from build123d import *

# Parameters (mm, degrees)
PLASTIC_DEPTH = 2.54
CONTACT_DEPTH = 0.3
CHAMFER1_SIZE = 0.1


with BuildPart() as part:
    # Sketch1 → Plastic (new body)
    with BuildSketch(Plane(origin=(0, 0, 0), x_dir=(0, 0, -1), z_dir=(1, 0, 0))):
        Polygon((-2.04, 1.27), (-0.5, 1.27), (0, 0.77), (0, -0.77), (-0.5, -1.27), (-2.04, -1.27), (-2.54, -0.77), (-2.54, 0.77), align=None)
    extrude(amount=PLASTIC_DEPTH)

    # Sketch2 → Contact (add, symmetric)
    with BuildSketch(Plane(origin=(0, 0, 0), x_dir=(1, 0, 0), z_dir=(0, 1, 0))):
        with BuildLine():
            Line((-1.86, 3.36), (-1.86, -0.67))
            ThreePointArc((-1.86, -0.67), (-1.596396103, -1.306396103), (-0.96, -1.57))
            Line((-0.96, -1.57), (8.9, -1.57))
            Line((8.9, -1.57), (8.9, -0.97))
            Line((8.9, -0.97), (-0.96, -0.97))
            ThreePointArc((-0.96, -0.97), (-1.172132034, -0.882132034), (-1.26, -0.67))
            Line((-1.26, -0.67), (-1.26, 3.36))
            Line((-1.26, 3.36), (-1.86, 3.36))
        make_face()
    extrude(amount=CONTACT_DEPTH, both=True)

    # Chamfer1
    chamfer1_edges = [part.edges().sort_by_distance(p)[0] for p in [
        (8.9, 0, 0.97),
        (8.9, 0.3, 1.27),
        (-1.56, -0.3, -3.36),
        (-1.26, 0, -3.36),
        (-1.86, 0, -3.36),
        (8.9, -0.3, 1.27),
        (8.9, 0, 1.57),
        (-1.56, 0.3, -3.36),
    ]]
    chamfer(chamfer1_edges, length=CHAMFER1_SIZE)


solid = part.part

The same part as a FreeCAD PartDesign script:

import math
import FreeCAD as App
import Part
import Sketcher

V = App.Vector
Q = App.Units.Quantity


def edges_at(feature, points):
    """Names of the edges that pass closest to the given points."""
    edges = feature.Shape.Edges
    near = lambda p: min(range(len(edges)), key=lambda i: edges[i].distToShape(Part.Vertex(*p))[0])
    return sorted({f"Edge{near(p) + 1}" for p in points})


def add_polygon(sketch, points):
    """Adds a closed chain of lines whose ends are joined by coincident constraints."""
    first, n = sketch.GeometryCount, len(points)
    for a, b in zip(points, points[1:] + points[:1]):
        sketch.addGeometry(Part.LineSegment(App.Vector(*a, 0), App.Vector(*b, 0)), False)
    for i in range(n):
        sketch.addConstraint(Sketcher.Constraint("Coincident", first + i, 2, first + (i + 1) % n, 1))

doc = App.newDocument("Part")
body = doc.addObject("PartDesign::Body", "Body")

# Sketch on YZ plane
sketch1 = body.newObject("Sketcher::SketchObject", "Sketch")
sketch1.AttachmentSupport = (doc.getObject("YZ_Plane"), [""])
sketch1.MapMode = "FlatFace"
add_polygon(sketch1, [(1.3, 0.5), (1.3, 2), (0.8, 2.5), (-0.8, 2.5), (-1.3, 2), (-1.3, 0.5), (-0.8, 0), (0.8, 0)])  # lines 0-7
sketch1.addConstraint(Sketcher.Constraint("Vertical", 0))
sketch1.addConstraint(Sketcher.Constraint("Horizontal", 2))
sketch1.addConstraint(Sketcher.Constraint("Vertical", 4))
sketch1.addConstraint(Sketcher.Constraint("Horizontal", 6))
sketch1.addConstraint(Sketcher.Constraint("Symmetric", 5, 2, 6, 2, -1, 1))
sketch1.addConstraint(Sketcher.Constraint("Symmetric", 0, 2, 3, 2, -2))
sketch1.addConstraint(Sketcher.Constraint("Perpendicular", 1, 3))
sketch1.addConstraint(Sketcher.Constraint("Perpendicular", 3, 5))
sketch1.addConstraint(Sketcher.Constraint("Perpendicular", 5, 7))
sketch1.addConstraint(Sketcher.Constraint("Horizontal", 4, 2, 7, 2))
sketch1.addConstraint(Sketcher.Constraint("Vertical", 2, 2, 5, 2))
sketch1.addConstraint(Sketcher.Constraint("Equal", 6, 0))
sketch1.addConstraint(Sketcher.Constraint("DistanceX", 2, 2, 2, 1, Q("1.54 mm")))
sketch1.addConstraint(Sketcher.Constraint("DistanceY", -1, 1, 4, 2, Q("0.5 mm")))
pad1 = body.newObject("PartDesign::Pad", "Pad")
pad1.Profile = sketch1
pad1.Length = 2.54

# Sketch on XZ plane
sketch2 = body.newObject("Sketcher::SketchObject", "Sketch001")
sketch2.AttachmentSupport = (doc.getObject("XZ_Plane"), [""])
sketch2.MapMode = "FlatFace"
sketch2.addGeometry(Part.LineSegment(V(-1.86, -3.36, 0), V(-1.86, 0.67, 0)), False)
sketch2.addGeometry(Part.ArcOfCircle(Part.Circle(V(-0.96, 0.67, 0), V(0, 0, 1), 0.9), math.radians(90), math.radians(180)), False)
sketch2.addGeometry(Part.LineSegment(V(-0.96, 1.57, 0), V(8.9, 1.57, 0)), False)
sketch2.addGeometry(Part.LineSegment(V(8.9, 1.57, 0), V(8.9, 0.97, 0)), False)
sketch2.addGeometry(Part.LineSegment(V(8.9, 0.97, 0), V(-0.96, 0.97, 0)), False)
sketch2.addGeometry(Part.ArcOfCircle(Part.Circle(V(-0.96, 0.67, 0), V(0, 0, 1), 0.3), math.radians(90), math.radians(180)), False)
sketch2.addGeometry(Part.LineSegment(V(-1.26, 0.67, 0), V(-1.26, -3.36, 0)), False)
sketch2.addGeometry(Part.LineSegment(V(-1.26, -3.36, 0), V(-1.86, -3.36, 0)), False)
sketch2.addConstraint(Sketcher.Constraint("Tangent", 0, 2, 1, 2))
sketch2.addConstraint(Sketcher.Constraint("Tangent", 1, 1, 2, 1))
sketch2.addConstraint(Sketcher.Constraint("Coincident", 2, 2, 3, 1))
sketch2.addConstraint(Sketcher.Constraint("Coincident", 3, 2, 4, 1))
sketch2.addConstraint(Sketcher.Constraint("Tangent", 4, 2, 5, 1))
sketch2.addConstraint(Sketcher.Constraint("Tangent", 5, 2, 6, 1))
sketch2.addConstraint(Sketcher.Constraint("Coincident", 6, 2, 7, 1))
sketch2.addConstraint(Sketcher.Constraint("Coincident", 7, 2, 0, 1))
sketch2.addConstraint(Sketcher.Constraint("Vertical", 0))
sketch2.addConstraint(Sketcher.Constraint("Horizontal", 2))
sketch2.addConstraint(Sketcher.Constraint("Vertical", 3))
sketch2.addConstraint(Sketcher.Constraint("Horizontal", 4))
sketch2.addConstraint(Sketcher.Constraint("Vertical", 6))
sketch2.addConstraint(Sketcher.Constraint("Horizontal", 7))
sketch2.addConstraint(Sketcher.Constraint("Coincident", 5, 3, 1, 3))
sketch2.addConstraint(Sketcher.Constraint("Radius", 1, Q("0.9 mm")))
sketch2.addConstraint(Sketcher.Constraint("Radius", 5, Q("0.3 mm")))
sketch2.addConstraint(Sketcher.Constraint("DistanceX", 2, 1, 2, 2, Q("9.86 mm")))
sketch2.addConstraint(Sketcher.Constraint("DistanceY", 0, 1, 0, 2, Q("4.03 mm")))
sketch2.addConstraint(Sketcher.Constraint("DistanceX", -1, 1, 2, 2, Q("8.9 mm")))
sketch2.addConstraint(Sketcher.Constraint("DistanceY", -1, 1, 1, 3, Q("0.67 mm")))
pad2 = body.newObject("PartDesign::Pad", "Pad001")
pad2.Profile = sketch2
pad2.Length = 0.6
pad2.Midplane = True
doc.recompute()

chamfer = body.newObject("PartDesign::Chamfer", "Chamfer")
chamfer.Base = (pad2, edges_at(pad2, [
    (8.9, 0, 0.97),
    (8.9, 0.3, 1.27),
    (-1.56, -0.3, -3.36),
    (-1.26, 0, -3.36),
    (-1.86, 0, -3.36),
    (8.9, -0.3, 1.27),
    (8.9, 0, 1.57),
    (-1.56, 0.3, -3.36),
]))
chamfer.Size = 0.1

doc.recompute()
